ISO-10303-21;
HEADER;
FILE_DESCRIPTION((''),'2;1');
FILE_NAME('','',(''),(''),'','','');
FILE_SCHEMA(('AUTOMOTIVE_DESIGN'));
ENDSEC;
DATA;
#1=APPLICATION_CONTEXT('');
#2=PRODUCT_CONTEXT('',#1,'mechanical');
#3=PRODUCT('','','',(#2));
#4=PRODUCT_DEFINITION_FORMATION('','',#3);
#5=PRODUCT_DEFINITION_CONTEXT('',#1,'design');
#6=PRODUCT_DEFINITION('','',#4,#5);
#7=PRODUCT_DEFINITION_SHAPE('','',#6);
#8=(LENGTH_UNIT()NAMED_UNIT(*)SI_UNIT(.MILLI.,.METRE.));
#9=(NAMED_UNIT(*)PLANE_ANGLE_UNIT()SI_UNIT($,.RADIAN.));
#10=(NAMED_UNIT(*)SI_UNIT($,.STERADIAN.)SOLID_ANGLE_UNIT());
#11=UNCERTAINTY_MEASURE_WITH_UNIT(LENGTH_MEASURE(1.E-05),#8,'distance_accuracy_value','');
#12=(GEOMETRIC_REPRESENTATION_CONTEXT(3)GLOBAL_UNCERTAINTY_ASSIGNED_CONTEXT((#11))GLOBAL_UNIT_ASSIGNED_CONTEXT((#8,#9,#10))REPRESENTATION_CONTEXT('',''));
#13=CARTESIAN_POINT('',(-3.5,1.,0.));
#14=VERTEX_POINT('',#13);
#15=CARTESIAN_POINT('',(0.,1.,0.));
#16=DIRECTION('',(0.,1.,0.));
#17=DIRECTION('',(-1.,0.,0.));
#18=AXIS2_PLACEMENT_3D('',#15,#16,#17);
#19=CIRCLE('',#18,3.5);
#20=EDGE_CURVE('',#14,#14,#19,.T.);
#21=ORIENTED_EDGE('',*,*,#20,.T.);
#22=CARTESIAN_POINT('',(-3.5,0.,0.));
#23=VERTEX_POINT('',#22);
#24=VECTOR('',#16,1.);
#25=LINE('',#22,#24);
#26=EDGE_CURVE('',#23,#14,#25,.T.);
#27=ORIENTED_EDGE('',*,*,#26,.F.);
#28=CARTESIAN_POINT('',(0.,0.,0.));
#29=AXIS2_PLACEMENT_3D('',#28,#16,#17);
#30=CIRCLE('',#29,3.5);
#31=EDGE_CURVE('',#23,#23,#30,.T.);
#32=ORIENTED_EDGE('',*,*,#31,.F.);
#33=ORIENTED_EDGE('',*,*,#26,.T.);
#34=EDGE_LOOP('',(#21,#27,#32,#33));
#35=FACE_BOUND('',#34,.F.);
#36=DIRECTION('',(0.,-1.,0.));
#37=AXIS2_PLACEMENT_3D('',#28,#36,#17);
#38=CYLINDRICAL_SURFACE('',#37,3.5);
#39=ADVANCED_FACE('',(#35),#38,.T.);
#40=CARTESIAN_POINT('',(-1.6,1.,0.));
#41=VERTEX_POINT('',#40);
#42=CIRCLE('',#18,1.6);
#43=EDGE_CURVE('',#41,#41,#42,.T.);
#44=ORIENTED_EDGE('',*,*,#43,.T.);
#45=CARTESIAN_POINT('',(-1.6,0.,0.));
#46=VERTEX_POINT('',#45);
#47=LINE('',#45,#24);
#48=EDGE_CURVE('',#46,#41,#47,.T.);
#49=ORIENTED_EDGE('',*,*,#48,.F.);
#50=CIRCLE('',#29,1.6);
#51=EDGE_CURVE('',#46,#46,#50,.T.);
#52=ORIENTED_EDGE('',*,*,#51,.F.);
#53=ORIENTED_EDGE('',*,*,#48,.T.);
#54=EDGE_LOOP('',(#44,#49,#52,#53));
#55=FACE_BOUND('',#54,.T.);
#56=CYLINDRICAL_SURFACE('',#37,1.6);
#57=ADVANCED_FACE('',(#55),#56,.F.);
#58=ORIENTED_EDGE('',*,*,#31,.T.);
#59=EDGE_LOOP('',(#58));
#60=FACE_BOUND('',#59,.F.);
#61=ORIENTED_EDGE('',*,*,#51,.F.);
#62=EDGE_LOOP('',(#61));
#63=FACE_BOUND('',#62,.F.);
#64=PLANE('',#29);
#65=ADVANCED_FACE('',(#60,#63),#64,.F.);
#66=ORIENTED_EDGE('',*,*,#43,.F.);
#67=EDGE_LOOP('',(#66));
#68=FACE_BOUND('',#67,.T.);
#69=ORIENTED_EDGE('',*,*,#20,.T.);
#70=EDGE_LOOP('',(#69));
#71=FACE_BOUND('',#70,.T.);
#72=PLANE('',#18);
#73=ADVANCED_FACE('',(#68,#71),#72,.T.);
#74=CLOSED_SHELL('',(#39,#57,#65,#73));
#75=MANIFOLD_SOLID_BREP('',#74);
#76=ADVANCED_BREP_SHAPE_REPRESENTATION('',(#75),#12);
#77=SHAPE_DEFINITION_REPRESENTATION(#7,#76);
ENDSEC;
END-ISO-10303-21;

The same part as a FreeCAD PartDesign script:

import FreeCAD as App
import Part
import Sketcher
Q = App.Units.Quantity

doc = App.newDocument("Part")
body = doc.addObject("PartDesign::Body", "Body")

# Sketch on XZ plane
sketch1 = body.newObject("Sketcher::SketchObject", "Sketch")
sketch1.AttachmentSupport = (doc.getObject("XZ_Plane"), [""])
sketch1.MapMode = "FlatFace"
sketch1.addGeometry(Part.Circle(App.Vector(0, 0, 0), App.Vector(0, 0, 1), 3.5), False)
sketch1.addGeometry(Part.Circle(App.Vector(0, 0, 0), App.Vector(0, 0, 1), 1.6), False)
sketch1.addConstraint(Sketcher.Constraint("Coincident", 0, 3, -1, 1))
sketch1.addConstraint(Sketcher.Constraint("Coincident", 1, 3, -1, 1))
sketch1.addConstraint(Sketcher.Constraint("Diameter", 0, Q("7 mm")))
sketch1.addConstraint(Sketcher.Constraint("Diameter", 1, Q("3.2 mm")))
pad1 = body.newObject("PartDesign::Pad", "Pad")
pad1.Profile = sketch1
pad1.Length = 1
pad1.Reversed = True

doc.recompute()
